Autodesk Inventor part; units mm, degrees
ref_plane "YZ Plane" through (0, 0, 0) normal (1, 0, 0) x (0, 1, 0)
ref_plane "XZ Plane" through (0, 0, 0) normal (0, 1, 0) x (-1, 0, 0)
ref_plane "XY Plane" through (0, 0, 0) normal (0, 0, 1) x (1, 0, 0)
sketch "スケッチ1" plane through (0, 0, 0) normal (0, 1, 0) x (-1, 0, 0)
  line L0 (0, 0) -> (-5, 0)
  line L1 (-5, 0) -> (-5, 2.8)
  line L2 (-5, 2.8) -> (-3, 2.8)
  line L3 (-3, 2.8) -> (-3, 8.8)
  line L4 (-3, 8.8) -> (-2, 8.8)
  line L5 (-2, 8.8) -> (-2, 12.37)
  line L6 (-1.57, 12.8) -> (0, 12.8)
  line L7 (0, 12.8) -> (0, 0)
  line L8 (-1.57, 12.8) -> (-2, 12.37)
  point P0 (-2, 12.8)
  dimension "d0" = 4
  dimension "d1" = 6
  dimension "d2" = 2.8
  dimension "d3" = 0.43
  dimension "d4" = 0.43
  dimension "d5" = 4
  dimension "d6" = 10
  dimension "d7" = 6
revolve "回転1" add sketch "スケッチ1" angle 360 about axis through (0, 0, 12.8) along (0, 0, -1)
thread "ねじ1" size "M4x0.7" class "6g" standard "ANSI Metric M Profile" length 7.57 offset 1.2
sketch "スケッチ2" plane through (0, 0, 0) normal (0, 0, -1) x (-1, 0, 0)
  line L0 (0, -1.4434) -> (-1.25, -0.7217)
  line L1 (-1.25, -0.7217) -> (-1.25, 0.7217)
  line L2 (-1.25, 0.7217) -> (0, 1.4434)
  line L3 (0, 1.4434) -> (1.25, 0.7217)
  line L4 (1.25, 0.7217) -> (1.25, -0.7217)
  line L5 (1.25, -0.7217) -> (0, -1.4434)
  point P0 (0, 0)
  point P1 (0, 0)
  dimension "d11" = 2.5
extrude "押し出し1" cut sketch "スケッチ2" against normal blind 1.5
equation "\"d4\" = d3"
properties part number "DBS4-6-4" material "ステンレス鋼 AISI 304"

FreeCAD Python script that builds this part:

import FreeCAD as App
import Part
import Sketcher

V = App.Vector
Q = App.Units.Quantity


def add_polygon(sketch, points):
    """Adds a closed chain of lines whose ends are joined by coincident constraints."""
    first, n = sketch.GeometryCount, len(points)
    for a, b in zip(points, points[1:] + points[:1]):
        sketch.addGeometry(Part.LineSegment(App.Vector(*a, 0), App.Vector(*b, 0)), False)
    for i in range(n):
        sketch.addConstraint(Sketcher.Constraint("Coincident", first + i, 2, first + (i + 1) % n, 1))

doc = App.newDocument("Part")
body = doc.addObject("PartDesign::Body", "Body")

# Sketch on XZ plane
sketch1 = body.newObject("Sketcher::SketchObject", "Sketch")
sketch1.AttachmentSupport = (doc.getObject("XZ_Plane"), [""])
sketch1.MapMode = "FlatFace"
add_polygon(sketch1, [(5, 0), (0, 0), (0, 12.8), (1.6, 12.8), (2, 12.4), (2, 8.8), (3, 8.8), (3, 2.8), (5, 2.8)])  # lines 0-8
sketch1.addConstraint([
    Sketcher.Constraint("Horizontal", 0),
    Sketcher.Constraint("Vertical", 1),
    Sketcher.Constraint("Horizontal", 2),
    Sketcher.Constraint("Vertical", 4),
    Sketcher.Constraint("Horizontal", 5),
    Sketcher.Constraint("Vertical", 6),
    Sketcher.Constraint("Horizontal", 7),
    Sketcher.Constraint("Vertical", 8),
    Sketcher.Constraint("Coincident", 0, 2, -1, 1),
    Sketcher.Constraint("DistanceY", 6, 2, 6, 1, 6.0),
    Sketcher.Constraint("DistanceY", 8, 2, 8, 1, 2.8),
    Sketcher.Constraint("DistanceY", 4, 2, 2, 2, 4.0),
    Sketcher.Constraint("DistanceX", 0, 2, 0, 1, 5.0),
    Sketcher.Constraint("DistanceX", 5, 1, 5, 2, 1.0),
    Sketcher.Constraint("DistanceX", 7, 1, 7, 2, 2.0),
    Sketcher.Constraint("Angle", 3, Q("-45 deg")),
    Sketcher.Constraint("DistanceX", 2, 2, 3, 2, 0.43),
])
revolution = body.newObject("PartDesign::Revolution", "Revolution")
revolution.Profile = sketch1
revolution.ReferenceAxis = (sketch1, ["V_Axis"])
revolution.Angle = 360

# Sketch on XY plane
sketch2 = body.newObject("Sketcher::SketchObject", "Sketch001")
sketch2.AttachmentSupport = (doc.getObject("XY_Plane"), [""])
sketch2.MapMode = "FlatFace"
add_polygon(sketch2, [(1.2, -0.7), (0, -1.4), (-1.2, -0.7), (-1.2, 0.7), (0, 1.4), (1.2, 0.7)])  # lines 0-5
sketch2.addConstraint([
    Sketcher.Constraint("Vertical", 2),
    Sketcher.Constraint("Vertical", 5),
    Sketcher.Constraint("Symmetric", 0, 2, 3, 2, -1, 1),
    Sketcher.Constraint("Symmetric", 1, 2, 4, 2, -1, 1),
    Sketcher.Constraint("PointOnObject", 0, 2, -2),
    Sketcher.Constraint("Parallel", 0, 3),
    Sketcher.Constraint("Horizontal", 2, 2, 4, 2),
    Sketcher.Constraint("DistanceX", 2, 2, 4, 2, 2.5),
    Sketcher.Constraint("Angle", 0, Q("-149.9996 deg")),
    Sketcher.Constraint("DistanceY", 2, 1, 2, 2, 1.4434),
])
pocket1 = body.newObject("PartDesign::Pocket", "Pocket")
pocket1.Profile = sketch2
pocket1.Length = 1.5
pocket1.Reversed = True

doc.recompute()
